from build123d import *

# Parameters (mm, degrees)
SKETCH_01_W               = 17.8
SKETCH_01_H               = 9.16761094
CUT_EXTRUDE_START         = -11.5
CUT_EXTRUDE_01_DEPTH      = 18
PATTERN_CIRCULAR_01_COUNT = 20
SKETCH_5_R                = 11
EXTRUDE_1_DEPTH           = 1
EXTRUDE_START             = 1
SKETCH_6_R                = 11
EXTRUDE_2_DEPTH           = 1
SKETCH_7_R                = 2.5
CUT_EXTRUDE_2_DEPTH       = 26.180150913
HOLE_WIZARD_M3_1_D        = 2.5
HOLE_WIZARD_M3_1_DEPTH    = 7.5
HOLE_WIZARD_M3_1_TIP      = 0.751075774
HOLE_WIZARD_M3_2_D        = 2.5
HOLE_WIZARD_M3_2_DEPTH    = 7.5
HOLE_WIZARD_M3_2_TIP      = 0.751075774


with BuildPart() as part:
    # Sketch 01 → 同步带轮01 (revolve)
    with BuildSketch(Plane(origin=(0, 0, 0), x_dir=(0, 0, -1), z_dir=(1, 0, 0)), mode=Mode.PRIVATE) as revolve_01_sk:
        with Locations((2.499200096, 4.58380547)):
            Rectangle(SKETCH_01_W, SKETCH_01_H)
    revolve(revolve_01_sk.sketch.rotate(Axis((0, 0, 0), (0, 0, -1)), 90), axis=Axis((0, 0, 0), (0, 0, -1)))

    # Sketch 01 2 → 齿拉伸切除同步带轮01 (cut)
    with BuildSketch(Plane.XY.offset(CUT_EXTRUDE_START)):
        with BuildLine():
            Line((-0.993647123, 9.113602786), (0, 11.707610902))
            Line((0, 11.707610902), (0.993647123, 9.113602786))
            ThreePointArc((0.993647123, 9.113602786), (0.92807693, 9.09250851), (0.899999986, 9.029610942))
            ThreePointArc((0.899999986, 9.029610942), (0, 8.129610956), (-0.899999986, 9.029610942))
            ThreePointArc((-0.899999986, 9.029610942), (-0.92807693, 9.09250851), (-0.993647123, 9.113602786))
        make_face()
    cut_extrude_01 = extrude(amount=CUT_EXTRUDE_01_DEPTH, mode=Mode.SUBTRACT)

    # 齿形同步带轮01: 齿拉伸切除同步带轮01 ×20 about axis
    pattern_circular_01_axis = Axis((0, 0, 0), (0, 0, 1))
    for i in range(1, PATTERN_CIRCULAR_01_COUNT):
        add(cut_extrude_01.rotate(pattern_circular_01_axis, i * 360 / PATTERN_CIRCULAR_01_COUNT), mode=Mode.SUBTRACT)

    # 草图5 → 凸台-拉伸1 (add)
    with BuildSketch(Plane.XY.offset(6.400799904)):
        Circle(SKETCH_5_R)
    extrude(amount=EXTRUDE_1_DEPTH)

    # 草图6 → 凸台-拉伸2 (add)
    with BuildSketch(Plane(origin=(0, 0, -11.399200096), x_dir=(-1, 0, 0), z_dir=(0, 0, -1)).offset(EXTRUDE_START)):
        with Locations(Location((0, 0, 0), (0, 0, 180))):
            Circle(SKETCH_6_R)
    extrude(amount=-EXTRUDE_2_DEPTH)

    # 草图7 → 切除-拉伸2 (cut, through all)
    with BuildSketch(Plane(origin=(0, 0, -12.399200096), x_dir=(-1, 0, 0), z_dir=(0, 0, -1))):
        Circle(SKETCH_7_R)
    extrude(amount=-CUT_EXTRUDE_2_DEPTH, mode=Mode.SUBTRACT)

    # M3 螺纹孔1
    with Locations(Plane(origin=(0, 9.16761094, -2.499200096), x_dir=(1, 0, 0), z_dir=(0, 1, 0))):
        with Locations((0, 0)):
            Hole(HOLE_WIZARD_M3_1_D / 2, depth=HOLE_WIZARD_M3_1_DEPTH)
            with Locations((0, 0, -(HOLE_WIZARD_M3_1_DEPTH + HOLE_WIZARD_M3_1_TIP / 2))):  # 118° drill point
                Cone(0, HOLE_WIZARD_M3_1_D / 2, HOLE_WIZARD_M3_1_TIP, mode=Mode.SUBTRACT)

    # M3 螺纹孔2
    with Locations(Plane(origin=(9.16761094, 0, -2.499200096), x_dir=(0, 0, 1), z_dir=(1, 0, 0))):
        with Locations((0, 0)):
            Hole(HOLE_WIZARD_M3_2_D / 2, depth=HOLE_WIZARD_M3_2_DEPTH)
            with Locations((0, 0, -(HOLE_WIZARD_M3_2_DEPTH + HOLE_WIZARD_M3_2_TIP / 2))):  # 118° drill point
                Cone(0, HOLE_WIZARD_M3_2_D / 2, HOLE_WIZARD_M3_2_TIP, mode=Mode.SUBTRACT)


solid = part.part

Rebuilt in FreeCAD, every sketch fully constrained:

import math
import FreeCAD as App
import Part
import Sketcher


def add_polygon(sketch, points):
    """Adds a closed chain of lines whose ends are joined by coincident constraints."""
    first, n = sketch.GeometryCount, len(points)
    for a, b in zip(points, points[1:] + points[:1]):
        sketch.addGeometry(Part.LineSegment(App.Vector(*a, 0), App.Vector(*b, 0)), False)
    for i in range(n):
        sketch.addConstraint(Sketcher.Constraint("Coincident", first + i, 2, first + (i + 1) % n, 1))

doc = App.newDocument("Part")
body = doc.addObject("PartDesign::Body", "Body")

# Sketch on YZ plane
sketch1 = body.newObject("Sketcher::SketchObject", "Sketch")
sketch1.AttachmentSupport = (doc.getObject("YZ_Plane"), [""])
sketch1.MapMode = "FlatFace"
add_polygon(sketch1, [(9, 6), (0, 6), (0, -11), (9, -11)])  # lines 0-3
sketch1.addConstraint(Sketcher.Constraint("Horizontal", 0))
sketch1.addConstraint(Sketcher.Constraint("Vertical", 1))
sketch1.addConstraint(Sketcher.Constraint("Horizontal", 2))
sketch1.addConstraint(Sketcher.Constraint("Vertical", 3))
sketch1.addConstraint(Sketcher.Constraint("PointOnObject", 0, 2, -2))
sketch1.addConstraint(Sketcher.Constraint("DistanceY", 1, 2, 1, 1, 17.8))
sketch1.addConstraint(Sketcher.Constraint("DistanceX", 0, 2, 0, 1, 9.167611))
sketch1.addConstraint(Sketcher.Constraint("DistanceY", -1, 1, 0, 2, 6.4008))
revolution = body.newObject("PartDesign::Revolution", "Revolution")
revolution.Profile = sketch1
revolution.ReferenceAxis = (sketch1, ["V_Axis"])
revolution.Angle = 360

# Sketch on XY plane
sketch2 = body.newObject("Sketcher::SketchObject", "Sketch001")
sketch2.AttachmentSupport = (doc.getObject("XY_Plane"), [""])
sketch2.MapMode = "FlatFace"
sketch2.AttachmentOffset = App.Placement(App.Vector(0, 0, -11.5), App.Rotation())
sketch2.addGeometry(Part.LineSegment(App.Vector(0, 11.71, 0), App.Vector(-0.99, 9.11, 0)), False)
sketch2.addGeometry(Part.ArcOfCircle(Part.Circle(App.Vector(-0.98, 9.03, 0), App.Vector(0, 0, 1), 0.08), math.radians(0), math.radians(96)), False)
sketch2.addGeometry(Part.ArcOfCircle(Part.Circle(App.Vector(0, 9.03, 0), App.Vector(0, 0, 1), 0.9), math.radians(180), math.radians(360)), False)
sketch2.addGeometry(Part.ArcOfCircle(Part.Circle(App.Vector(0.98, 9.03, 0), App.Vector(0, 0, 1), 0.08), math.radians(84), math.radians(180)), False)
sketch2.addGeometry(Part.LineSegment(App.Vector(0.99, 9.11, 0), App.Vector(0, 11.71, 0)), False)
sketch2.addConstraint(Sketcher.Constraint("Coincident", 0, 2, 1, 2))
sketch2.addConstraint(Sketcher.Constraint("Tangent", 1, 1, 2, 1))
sketch2.addConstraint(Sketcher.Constraint("Tangent", 2, 2, 3, 2))
sketch2.addConstraint(Sketcher.Constraint("Coincident", 3, 1, 4, 1))
sketch2.addConstraint(Sketcher.Constraint("Coincident", 4, 2, 0, 1))
sketch2.addConstraint(Sketcher.Constraint("Equal", 1, 3))
sketch2.addConstraint(Sketcher.Constraint("Symmetric", 1, 3, 3, 3, -2))
sketch2.addConstraint(Sketcher.Constraint("PointOnObject", 4, 2, -2))
sketch2.addConstraint(Sketcher.Constraint("Horizontal", 1, 3, 2, 3))
sketch2.addConstraint(Sketcher.Constraint("Horizontal", 0, 2, 3, 1))
sketch2.addConstraint(Sketcher.Constraint("Radius", 2, 0.9))
sketch2.addConstraint(Sketcher.Constraint("Radius", 1, 0.08449))
sketch2.addConstraint(Sketcher.Constraint("DistanceY", 2, 3, 4, 2, 2.678))
sketch2.addConstraint(Sketcher.Constraint("DistanceY", -1, 1, 1, 3, 9.029611))
sketch2.addConstraint(Sketcher.Constraint("DistanceY", 1, 3, 0, 2, 0.083992))
pocket1 = body.newObject("PartDesign::Pocket", "Pocket")
pocket1.Profile = sketch2
pocket1.Length = 18
pocket1.Reversed = True
doc.recompute()

polarpattern = body.newObject("PartDesign::PolarPattern", "PolarPattern")
polarpattern.Originals = [pocket1]
polarpattern.Axis = (doc.getObject("Z_Axis"), [""])
polarpattern.Angle = 360
polarpattern.Occurrences = 20
body.Tip = polarpattern

# Sketch on XY plane
sketch3 = body.newObject("Sketcher::SketchObject", "Sketch002")
sketch3.AttachmentSupport = (doc.getObject("XY_Plane"), [""])
sketch3.MapMode = "FlatFace"
sketch3.AttachmentOffset = App.Placement(App.Vector(0, 0, 6.4008), App.Rotation())
sketch3.addGeometry(Part.Circle(App.Vector(0, 0, 0), App.Vector(0, 0, 1), 11), False)
sketch3.addConstraint(Sketcher.Constraint("Coincident", 0, 3, -1, 1))
sketch3.addConstraint(Sketcher.Constraint("Diameter", 0, 22.0))
pad1 = body.newObject("PartDesign::Pad", "Pad")
pad1.Profile = sketch3
pad1.Length = 1

# Sketch on XY plane
sketch4 = body.newObject("Sketcher::SketchObject", "Sketch003")
sketch4.AttachmentSupport = (doc.getObject("XY_Plane"), [""])
sketch4.MapMode = "FlatFace"
sketch4.AttachmentOffset = App.Placement(App.Vector(0, 0, -12.3992), App.Rotation())
sketch4.addGeometry(Part.Circle(App.Vector(0, 0, 0), App.Vector(0, 0, 1), 11), False)
sketch4.addConstraint(Sketcher.Constraint("Coincident", 0, 3, -1, 1))
sketch4.addConstraint(Sketcher.Constraint("Diameter", 0, 22.0))
pad2 = body.newObject("PartDesign::Pad", "Pad001")
pad2.Profile = sketch4
pad2.Length = 1

# Sketch on XY plane
sketch5 = body.newObject("Sketcher::SketchObject", "Sketch004")
sketch5.AttachmentSupport = (doc.getObject("XY_Plane"), [""])
sketch5.MapMode = "FlatFace"
sketch5.AttachmentOffset = App.Placement(App.Vector(0, 0, -12.3992), App.Rotation())
sketch5.addGeometry(Part.Circle(App.Vector(0, 0, 0), App.Vector(0, 0, 1), 2.5), False)
sketch5.addConstraint(Sketcher.Constraint("Coincident", 0, 3, -1, 1))
sketch5.addConstraint(Sketcher.Constraint("Diameter", 0, 5.0))
pocket2 = body.newObject("PartDesign::Pocket", "Pocket001")
pocket2.Profile = sketch5
pocket2.Type = "ThroughAll"
pocket2.Reversed = True

# Sketch on XZ plane
sketch6 = body.newObject("Sketcher::SketchObject", "Sketch005")
sketch6.AttachmentSupport = (doc.getObject("XZ_Plane"), [""])
sketch6.MapMode = "FlatFace"
sketch6.AttachmentOffset = App.Placement(App.Vector(0, 0, -9.167611), App.Rotation())
sketch6.addGeometry(Part.Circle(App.Vector(0, -2.5, 0), App.Vector(0, 0, 1), 1.2), False)
sketch6.addConstraint(Sketcher.Constraint("PointOnObject", 0, 3, -2))
sketch6.addConstraint(Sketcher.Constraint("Diameter", 0, 2.5))
sketch6.addConstraint(Sketcher.Constraint("DistanceY", 0, 3, -1, 1, 2.4992))
doc.recompute()
hole = body.newObject("PartDesign::Hole", "Hole")
hole.Profile = sketch6
hole.ThreadType = "None"
hole.Diameter = 2.5
hole.DepthType = "Dimension"
hole.Depth = 7.5
hole.DrillPoint = "Angled"
hole.DrillPointAngle = 118
hole.Reversed = True

# Sketch on YZ plane
sketch7 = body.newObject("Sketcher::SketchObject", "Sketch006")
sketch7.AttachmentSupport = (doc.getObject("YZ_Plane"), [""])
sketch7.MapMode = "FlatFace"
sketch7.AttachmentOffset = App.Placement(App.Vector(0, 0, 9.167611), App.Rotation())
sketch7.addGeometry(Part.Circle(App.Vector(0, -2.5, 0), App.Vector(0, 0, 1), 1.2), False)
sketch7.addConstraint(Sketcher.Constraint("PointOnObject", 0, 3, -2))
sketch7.addConstraint(Sketcher.Constraint("Diameter", 0, 2.5))
sketch7.addConstraint(Sketcher.Constraint("DistanceY", 0, 3, -1, 1, 2.4992))
doc.recompute()
hole2 = body.newObject("PartDesign::Hole", "Hole001")
hole2.Profile = sketch7
hole2.ThreadType = "None"
hole2.Diameter = 2.5
hole2.DepthType = "Dimension"
hole2.Depth = 7.5
hole2.DrillPoint = "Angled"
hole2.DrillPointAngle = 118

doc.recompute()
